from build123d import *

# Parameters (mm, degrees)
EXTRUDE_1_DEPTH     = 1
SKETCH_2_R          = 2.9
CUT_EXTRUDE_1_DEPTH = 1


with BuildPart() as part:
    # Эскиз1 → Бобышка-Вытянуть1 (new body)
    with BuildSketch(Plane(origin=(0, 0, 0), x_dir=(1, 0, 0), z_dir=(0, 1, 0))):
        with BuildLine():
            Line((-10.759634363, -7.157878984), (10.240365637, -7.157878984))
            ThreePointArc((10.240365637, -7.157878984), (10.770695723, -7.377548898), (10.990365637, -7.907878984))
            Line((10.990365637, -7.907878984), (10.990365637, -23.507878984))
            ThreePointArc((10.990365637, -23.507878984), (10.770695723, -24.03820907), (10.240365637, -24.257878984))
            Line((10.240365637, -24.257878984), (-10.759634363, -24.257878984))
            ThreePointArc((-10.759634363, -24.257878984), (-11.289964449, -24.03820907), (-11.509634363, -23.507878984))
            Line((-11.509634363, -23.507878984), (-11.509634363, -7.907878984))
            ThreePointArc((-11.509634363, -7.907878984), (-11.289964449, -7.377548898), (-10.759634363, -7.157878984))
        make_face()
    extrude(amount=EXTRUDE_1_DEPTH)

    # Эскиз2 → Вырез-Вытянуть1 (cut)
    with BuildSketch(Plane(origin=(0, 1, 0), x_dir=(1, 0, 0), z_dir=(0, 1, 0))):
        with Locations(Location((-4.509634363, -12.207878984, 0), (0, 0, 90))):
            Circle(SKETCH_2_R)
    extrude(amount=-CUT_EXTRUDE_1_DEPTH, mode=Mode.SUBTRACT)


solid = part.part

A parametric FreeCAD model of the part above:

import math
import FreeCAD as App
import Part
import Sketcher

doc = App.newDocument("Part")
body = doc.addObject("PartDesign::Body", "Body")

# Sketch on XZ plane
sketch1 = body.newObject("Sketcher::SketchObject", "Sketch")
sketch1.AttachmentSupport = (doc.getObject("XZ_Plane"), [""])
sketch1.MapMode = "FlatFace"
sketch1.addGeometry(Part.LineSegment(App.Vector(10.2, 7.2, 0), App.Vector(-10.8, 7.2, 0)), False)
sketch1.addGeometry(Part.ArcOfCircle(Part.Circle(App.Vector(-10.8, 7.9, 0), App.Vector(0, 0, 1), 0.8), math.radians(180), math.radians(270)), False)
sketch1.addGeometry(Part.LineSegment(App.Vector(-11.5, 7.9, 0), App.Vector(-11.5, 23.5, 0)), False)
sketch1.addGeometry(Part.ArcOfCircle(Part.Circle(App.Vector(-10.8, 23.5, 0), App.Vector(0, 0, 1), 0.8), math.radians(90), math.radians(180)), False)
sketch1.addGeometry(Part.LineSegment(App.Vector(-10.8, 24.3, 0), App.Vector(10.2, 24.3, 0)), False)
sketch1.addGeometry(Part.ArcOfCircle(Part.Circle(App.Vector(10.2, 23.5, 0), App.Vector(0, 0, 1), 0.8), math.radians(0), math.radians(90)), False)
sketch1.addGeometry(Part.LineSegment(App.Vector(11, 23.5, 0), App.Vector(11, 7.9, 0)), False)
sketch1.addGeometry(Part.ArcOfCircle(Part.Circle(App.Vector(10.2, 7.9, 0), App.Vector(0, 0, 1), 0.8), math.radians(-90), math.radians(0)), False)
sketch1.addConstraint(Sketcher.Constraint("Tangent", 0, 2, 1, 2))
sketch1.addConstraint(Sketcher.Constraint("Tangent", 1, 1, 2, 1))
sketch1.addConstraint(Sketcher.Constraint("Tangent", 2, 2, 3, 2))
sketch1.addConstraint(Sketcher.Constraint("Tangent", 3, 1, 4, 1))
sketch1.addConstraint(Sketcher.Constraint("Tangent", 4, 2, 5, 2))
sketch1.addConstraint(Sketcher.Constraint("Tangent", 5, 1, 6, 1))
sketch1.addConstraint(Sketcher.Constraint("Tangent", 6, 2, 7, 2))
sketch1.addConstraint(Sketcher.Constraint("Tangent", 7, 1, 0, 1))
sketch1.addConstraint(Sketcher.Constraint("Horizontal", 0))
sketch1.addConstraint(Sketcher.Constraint("Vertical", 2))
sketch1.addConstraint(Sketcher.Constraint("Horizontal", 4))
sketch1.addConstraint(Sketcher.Constraint("Vertical", 6))
sketch1.addConstraint(Sketcher.Constraint("Equal", 1, 3))
sketch1.addConstraint(Sketcher.Constraint("Equal", 3, 5))
sketch1.addConstraint(Sketcher.Constraint("Equal", 5, 7))
sketch1.addConstraint(Sketcher.Constraint("DistanceX", 0, 2, 0, 1, 21.0))
sketch1.addConstraint(Sketcher.Constraint("Radius", 1, 0.75))
sketch1.addConstraint(Sketcher.Constraint("DistanceY", 2, 1, 2, 2, 15.6))
sketch1.addConstraint(Sketcher.Constraint("DistanceY", -1, 1, 1, 3, 7.907879))
sketch1.addConstraint(Sketcher.Constraint("DistanceX", 1, 3, -1, 1, 10.759634))
pad1 = body.newObject("PartDesign::Pad", "Pad")
pad1.Profile = sketch1
pad1.Length = 1
pad1.Reversed = True

# Sketch on XZ plane
sketch2 = body.newObject("Sketcher::SketchObject", "Sketch001")
sketch2.AttachmentSupport = (doc.getObject("XZ_Plane"), [""])
sketch2.MapMode = "FlatFace"
sketch2.AttachmentOffset = App.Placement(App.Vector(0, 0, -1), App.Rotation())
sketch2.addGeometry(Part.Circle(App.Vector(-4.5, 12.2, 0), App.Vector(0, 0, 1), 2.9), False)
sketch2.addConstraint(Sketcher.Constraint("Diameter", 0, 5.8))
sketch2.addConstraint(Sketcher.Constraint("DistanceY", -1, 1, 0, 3, 12.207879))
sketch2.addConstraint(Sketcher.Constraint("DistanceX", 0, 3, -1, 1, 4.509634))
pocket1 = body.newObject("PartDesign::Pocket", "Pocket")
pocket1.Profile = sketch2
pocket1.Length = 1
pocket1.Reversed = True

doc.recompute()
